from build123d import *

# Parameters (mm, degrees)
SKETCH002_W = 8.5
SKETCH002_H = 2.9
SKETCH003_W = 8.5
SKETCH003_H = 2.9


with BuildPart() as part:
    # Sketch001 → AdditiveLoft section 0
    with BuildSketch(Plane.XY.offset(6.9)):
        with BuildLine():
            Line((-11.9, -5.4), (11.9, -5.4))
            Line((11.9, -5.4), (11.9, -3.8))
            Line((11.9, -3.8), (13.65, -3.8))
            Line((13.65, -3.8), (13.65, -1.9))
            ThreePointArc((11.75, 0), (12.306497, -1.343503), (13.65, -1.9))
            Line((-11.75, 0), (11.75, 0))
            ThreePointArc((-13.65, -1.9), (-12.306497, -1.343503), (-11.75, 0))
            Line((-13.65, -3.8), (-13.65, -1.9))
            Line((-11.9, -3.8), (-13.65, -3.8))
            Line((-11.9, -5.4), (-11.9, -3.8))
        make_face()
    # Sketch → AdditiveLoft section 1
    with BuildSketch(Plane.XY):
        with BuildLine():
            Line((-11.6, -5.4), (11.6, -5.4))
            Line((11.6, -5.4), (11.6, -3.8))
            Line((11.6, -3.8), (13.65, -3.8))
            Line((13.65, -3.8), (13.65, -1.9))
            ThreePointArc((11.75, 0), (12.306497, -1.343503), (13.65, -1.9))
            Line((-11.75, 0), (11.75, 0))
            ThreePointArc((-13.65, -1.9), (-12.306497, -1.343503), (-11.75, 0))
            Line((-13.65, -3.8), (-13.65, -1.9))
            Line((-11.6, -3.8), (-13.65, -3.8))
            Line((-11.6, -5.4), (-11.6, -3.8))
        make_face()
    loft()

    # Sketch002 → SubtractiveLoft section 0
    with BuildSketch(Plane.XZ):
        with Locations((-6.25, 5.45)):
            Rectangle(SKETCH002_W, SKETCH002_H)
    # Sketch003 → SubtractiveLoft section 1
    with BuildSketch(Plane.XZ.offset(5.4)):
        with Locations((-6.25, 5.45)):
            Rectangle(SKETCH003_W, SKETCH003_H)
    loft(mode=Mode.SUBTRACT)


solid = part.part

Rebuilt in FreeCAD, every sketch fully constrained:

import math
import FreeCAD as App
import Part
import Sketcher

V = App.Vector

doc = App.newDocument("Part")
body = doc.addObject("PartDesign::Body", "Body")

sketch1 = body.newObject("Sketcher::SketchObject", "Sketch")
sketch1.AttachmentSupport = (doc.getObject("XY_Plane"), [""])
sketch1.MapMode = "FlatFace"
sketch1.AttachmentOffset = App.Placement(V(0, 0, 6.9), App.Rotation())
sketch1.addGeometry([
    Part.LineSegment(V(-11.9, -5.4, 0), V(11.9, -5.4, 0)),
    Part.LineSegment(V(11.9, -5.4, 0), V(11.9, -3.8, 0)),
    Part.LineSegment(V(11.9, -3.8, 0), V(13.65, -3.8, 0)),
    Part.LineSegment(V(13.65, -3.8, 0), V(13.65, -1.9, 0)),
    Part.ArcOfCircle(Part.Circle(V(13.65, 0, 0), V(0, 0, 1), 1.9), math.radians(179.999988), math.radians(270.000012)),
    Part.LineSegment(V(11.75, 0, 0), V(-11.75, 0, 0)),
    Part.ArcOfCircle(Part.Circle(V(-13.65, 0, 0), V(0, 0, 1), 1.9), math.radians(-90.000012), math.radians(0.000012)),
    Part.LineSegment(V(-13.65, -1.9, 0), V(-13.65, -3.8, 0)),
    Part.LineSegment(V(-13.65, -3.8, 0), V(-11.9, -3.8, 0)),
    Part.LineSegment(V(-11.9, -3.8, 0), V(-11.9, -5.4, 0)),
], False)
sketch1.addConstraint([
    Sketcher.Constraint("Coincident", 0, 2, 1, 1),
    Sketcher.Constraint("Coincident", 1, 2, 2, 1),
    Sketcher.Constraint("Coincident", 2, 2, 3, 1),
    Sketcher.Constraint("Coincident", 3, 2, 4, 2),
    Sketcher.Constraint("Coincident", 4, 1, 5, 1),
    Sketcher.Constraint("Coincident", 5, 2, 6, 2),
    Sketcher.Constraint("Coincident", 6, 1, 7, 1),
    Sketcher.Constraint("Coincident", 7, 2, 8, 1),
    Sketcher.Constraint("Coincident", 8, 2, 9, 1),
    Sketcher.Constraint("Coincident", 9, 2, 0, 1),
    Sketcher.Constraint("Horizontal", 0),
    Sketcher.Constraint("Vertical", 1),
    Sketcher.Constraint("Horizontal", 2),
    Sketcher.Constraint("Vertical", 3),
    Sketcher.Constraint("Horizontal", 5),
    Sketcher.Constraint("Vertical", 7),
    Sketcher.Constraint("Horizontal", 8),
    Sketcher.Constraint("Vertical", 9),
    Sketcher.Constraint("Equal", 4, 6),
    Sketcher.Constraint("Symmetric", 4, 3, 6, 3, -1, 1),
    Sketcher.Constraint("Symmetric", 3, 2, 6, 1, -2),
    Sketcher.Constraint("Symmetric", 1, 2, 8, 2, -2),
    Sketcher.Constraint("PointOnObject", 4, 1, -1),
    Sketcher.Constraint("Vertical", 4, 3, 2, 2),
    Sketcher.Constraint("Radius", 4, 1.9),
    Sketcher.Constraint("DistanceX", 0, 1, 0, 2, 23.8),
    Sketcher.Constraint("DistanceX", 5, 2, 5, 1, 23.5),
    Sketcher.Constraint("DistanceY", 1, 1, 1, 2, 1.6),
    Sketcher.Constraint("DistanceY", 3, 1, 3, 2, 1.9),
])

sketch2 = body.newObject("Sketcher::SketchObject", "Sketch001")
sketch2.AttachmentSupport = (doc.getObject("XY_Plane"), [""])
sketch2.MapMode = "FlatFace"
sketch2.addGeometry([
    Part.LineSegment(V(-11.6, -5.4, 0), V(11.6, -5.4, 0)),
    Part.LineSegment(V(11.6, -5.4, 0), V(11.6, -3.8, 0)),
    Part.LineSegment(V(11.6, -3.8, 0), V(13.65, -3.8, 0)),
    Part.LineSegment(V(13.65, -3.8, 0), V(13.65, -1.9, 0)),
    Part.ArcOfCircle(Part.Circle(V(13.65, 0, 0), V(0, 0, 1), 1.9), math.radians(179.999988), math.radians(270.000012)),
    Part.LineSegment(V(11.75, 0, 0), V(-11.75, 0, 0)),
    Part.ArcOfCircle(Part.Circle(V(-13.65, 0, 0), V(0, 0, 1), 1.9), math.radians(-90.000012), math.radians(0.000012)),
    Part.LineSegment(V(-13.65, -1.9, 0), V(-13.65, -3.8, 0)),
    Part.LineSegment(V(-13.65, -3.8, 0), V(-11.6, -3.8, 0)),
    Part.LineSegment(V(-11.6, -3.8, 0), V(-11.6, -5.4, 0)),
], False)
sketch2.addConstraint([
    Sketcher.Constraint("Coincident", 0, 2, 1, 1),
    Sketcher.Constraint("Coincident", 1, 2, 2, 1),
    Sketcher.Constraint("Coincident", 2, 2, 3, 1),
    Sketcher.Constraint("Coincident", 3, 2, 4, 2),
    Sketcher.Constraint("Coincident", 4, 1, 5, 1),
    Sketcher.Constraint("Coincident", 5, 2, 6, 2),
    Sketcher.Constraint("Coincident", 6, 1, 7, 1),
    Sketcher.Constraint("Coincident", 7, 2, 8, 1),
    Sketcher.Constraint("Coincident", 8, 2, 9, 1),
    Sketcher.Constraint("Coincident", 9, 2, 0, 1),
    Sketcher.Constraint("Horizontal", 0),
    Sketcher.Constraint("Vertical", 1),
    Sketcher.Constraint("Horizontal", 2),
    Sketcher.Constraint("Vertical", 3),
    Sketcher.Constraint("Horizontal", 5),
    Sketcher.Constraint("Vertical", 7),
    Sketcher.Constraint("Horizontal", 8),
    Sketcher.Constraint("Vertical", 9),
    Sketcher.Constraint("Equal", 4, 6),
    Sketcher.Constraint("Symmetric", 4, 3, 6, 3, -1, 1),
    Sketcher.Constraint("Symmetric", 3, 2, 6, 1, -2),
    Sketcher.Constraint("Symmetric", 1, 2, 8, 2, -2),
    Sketcher.Constraint("PointOnObject", 4, 1, -1),
    Sketcher.Constraint("Vertical", 4, 3, 2, 2),
    Sketcher.Constraint("Radius", 4, 1.9),
    Sketcher.Constraint("DistanceX", 0, 1, 0, 2, 23.2),
    Sketcher.Constraint("DistanceX", 5, 2, 5, 1, 23.5),
    Sketcher.Constraint("DistanceY", 1, 1, 1, 2, 1.6),
    Sketcher.Constraint("DistanceY", 3, 1, 3, 2, 1.9),
])

additiveloft = body.newObject("PartDesign::AdditiveLoft", "AdditiveLoft")
additiveloft.Profile = sketch1
additiveloft.Sections = [sketch2]

sketch3 = body.newObject("Sketcher::SketchObject", "Sketch002")
sketch3.AttachmentSupport = (doc.getObject("XZ_Plane"), [""])
sketch3.MapMode = "FlatFace"
sketch3.addGeometry([
    Part.LineSegment(V(-10.5, 6.9, 0), V(-10.5, 4, 0)),
    Part.LineSegment(V(-10.5, 4, 0), V(-2, 4, 0)),
    Part.LineSegment(V(-2, 4, 0), V(-2, 6.9, 0)),
    Part.LineSegment(V(-2, 6.9, 0), V(-10.5, 6.9, 0)),
], False)
sketch3.addConstraint([
    Sketcher.Constraint("Coincident", 0, 2, 1, 1),
    Sketcher.Constraint("Coincident", 1, 2, 2, 1),
    Sketcher.Constraint("Coincident", 2, 2, 3, 1),
    Sketcher.Constraint("Coincident", 3, 2, 0, 1),
    Sketcher.Constraint("Vertical", 0),
    Sketcher.Constraint("Horizontal", 1),
    Sketcher.Constraint("Vertical", 2),
    Sketcher.Constraint("Horizontal", 3),
    Sketcher.Constraint("DistanceX", 1, 1, 1, 2, 8.5),
    Sketcher.Constraint("DistanceY", 0, 2, 0, 1, 2.9),
    Sketcher.Constraint("DistanceY", -1, 1, 0, 2, 4.0),
    Sketcher.Constraint("DistanceX", 1, 2, -1, 1, 2.0),
])

sketch4 = body.newObject("Sketcher::SketchObject", "Sketch003")
sketch4.AttachmentSupport = (doc.getObject("XZ_Plane"), [""])
sketch4.MapMode = "FlatFace"
sketch4.AttachmentOffset = App.Placement(V(0, 0, 5.4), App.Rotation())
sketch4.addGeometry([
    Part.LineSegment(V(-10.5, 6.9, 0), V(-10.5, 4, 0)),
    Part.LineSegment(V(-10.5, 4, 0), V(-2, 4, 0)),
    Part.LineSegment(V(-2, 4, 0), V(-2, 6.9, 0)),
    Part.LineSegment(V(-2, 6.9, 0), V(-10.5, 6.9, 0)),
], False)
sketch4.addConstraint([
    Sketcher.Constraint("Coincident", 0, 2, 1, 1),
    Sketcher.Constraint("Coincident", 1, 2, 2, 1),
    Sketcher.Constraint("Coincident", 2, 2, 3, 1),
    Sketcher.Constraint("Coincident", 3, 2, 0, 1),
    Sketcher.Constraint("Vertical", 0),
    Sketcher.Constraint("Horizontal", 1),
    Sketcher.Constraint("Vertical", 2),
    Sketcher.Constraint("Horizontal", 3),
    Sketcher.Constraint("DistanceX", 1, 1, 1, 2, 8.5),
    Sketcher.Constraint("DistanceY", 0, 2, 0, 1, 2.9),
    Sketcher.Constraint("DistanceY", -1, 1, 0, 2, 4.0),
    Sketcher.Constraint("DistanceX", 1, 2, -1, 1, 2.0),
])

subtractiveloft = body.newObject("PartDesign::SubtractiveLoft", "SubtractiveLoft")
subtractiveloft.Profile = sketch3
subtractiveloft.Sections = [sketch4]

doc.recompute()
